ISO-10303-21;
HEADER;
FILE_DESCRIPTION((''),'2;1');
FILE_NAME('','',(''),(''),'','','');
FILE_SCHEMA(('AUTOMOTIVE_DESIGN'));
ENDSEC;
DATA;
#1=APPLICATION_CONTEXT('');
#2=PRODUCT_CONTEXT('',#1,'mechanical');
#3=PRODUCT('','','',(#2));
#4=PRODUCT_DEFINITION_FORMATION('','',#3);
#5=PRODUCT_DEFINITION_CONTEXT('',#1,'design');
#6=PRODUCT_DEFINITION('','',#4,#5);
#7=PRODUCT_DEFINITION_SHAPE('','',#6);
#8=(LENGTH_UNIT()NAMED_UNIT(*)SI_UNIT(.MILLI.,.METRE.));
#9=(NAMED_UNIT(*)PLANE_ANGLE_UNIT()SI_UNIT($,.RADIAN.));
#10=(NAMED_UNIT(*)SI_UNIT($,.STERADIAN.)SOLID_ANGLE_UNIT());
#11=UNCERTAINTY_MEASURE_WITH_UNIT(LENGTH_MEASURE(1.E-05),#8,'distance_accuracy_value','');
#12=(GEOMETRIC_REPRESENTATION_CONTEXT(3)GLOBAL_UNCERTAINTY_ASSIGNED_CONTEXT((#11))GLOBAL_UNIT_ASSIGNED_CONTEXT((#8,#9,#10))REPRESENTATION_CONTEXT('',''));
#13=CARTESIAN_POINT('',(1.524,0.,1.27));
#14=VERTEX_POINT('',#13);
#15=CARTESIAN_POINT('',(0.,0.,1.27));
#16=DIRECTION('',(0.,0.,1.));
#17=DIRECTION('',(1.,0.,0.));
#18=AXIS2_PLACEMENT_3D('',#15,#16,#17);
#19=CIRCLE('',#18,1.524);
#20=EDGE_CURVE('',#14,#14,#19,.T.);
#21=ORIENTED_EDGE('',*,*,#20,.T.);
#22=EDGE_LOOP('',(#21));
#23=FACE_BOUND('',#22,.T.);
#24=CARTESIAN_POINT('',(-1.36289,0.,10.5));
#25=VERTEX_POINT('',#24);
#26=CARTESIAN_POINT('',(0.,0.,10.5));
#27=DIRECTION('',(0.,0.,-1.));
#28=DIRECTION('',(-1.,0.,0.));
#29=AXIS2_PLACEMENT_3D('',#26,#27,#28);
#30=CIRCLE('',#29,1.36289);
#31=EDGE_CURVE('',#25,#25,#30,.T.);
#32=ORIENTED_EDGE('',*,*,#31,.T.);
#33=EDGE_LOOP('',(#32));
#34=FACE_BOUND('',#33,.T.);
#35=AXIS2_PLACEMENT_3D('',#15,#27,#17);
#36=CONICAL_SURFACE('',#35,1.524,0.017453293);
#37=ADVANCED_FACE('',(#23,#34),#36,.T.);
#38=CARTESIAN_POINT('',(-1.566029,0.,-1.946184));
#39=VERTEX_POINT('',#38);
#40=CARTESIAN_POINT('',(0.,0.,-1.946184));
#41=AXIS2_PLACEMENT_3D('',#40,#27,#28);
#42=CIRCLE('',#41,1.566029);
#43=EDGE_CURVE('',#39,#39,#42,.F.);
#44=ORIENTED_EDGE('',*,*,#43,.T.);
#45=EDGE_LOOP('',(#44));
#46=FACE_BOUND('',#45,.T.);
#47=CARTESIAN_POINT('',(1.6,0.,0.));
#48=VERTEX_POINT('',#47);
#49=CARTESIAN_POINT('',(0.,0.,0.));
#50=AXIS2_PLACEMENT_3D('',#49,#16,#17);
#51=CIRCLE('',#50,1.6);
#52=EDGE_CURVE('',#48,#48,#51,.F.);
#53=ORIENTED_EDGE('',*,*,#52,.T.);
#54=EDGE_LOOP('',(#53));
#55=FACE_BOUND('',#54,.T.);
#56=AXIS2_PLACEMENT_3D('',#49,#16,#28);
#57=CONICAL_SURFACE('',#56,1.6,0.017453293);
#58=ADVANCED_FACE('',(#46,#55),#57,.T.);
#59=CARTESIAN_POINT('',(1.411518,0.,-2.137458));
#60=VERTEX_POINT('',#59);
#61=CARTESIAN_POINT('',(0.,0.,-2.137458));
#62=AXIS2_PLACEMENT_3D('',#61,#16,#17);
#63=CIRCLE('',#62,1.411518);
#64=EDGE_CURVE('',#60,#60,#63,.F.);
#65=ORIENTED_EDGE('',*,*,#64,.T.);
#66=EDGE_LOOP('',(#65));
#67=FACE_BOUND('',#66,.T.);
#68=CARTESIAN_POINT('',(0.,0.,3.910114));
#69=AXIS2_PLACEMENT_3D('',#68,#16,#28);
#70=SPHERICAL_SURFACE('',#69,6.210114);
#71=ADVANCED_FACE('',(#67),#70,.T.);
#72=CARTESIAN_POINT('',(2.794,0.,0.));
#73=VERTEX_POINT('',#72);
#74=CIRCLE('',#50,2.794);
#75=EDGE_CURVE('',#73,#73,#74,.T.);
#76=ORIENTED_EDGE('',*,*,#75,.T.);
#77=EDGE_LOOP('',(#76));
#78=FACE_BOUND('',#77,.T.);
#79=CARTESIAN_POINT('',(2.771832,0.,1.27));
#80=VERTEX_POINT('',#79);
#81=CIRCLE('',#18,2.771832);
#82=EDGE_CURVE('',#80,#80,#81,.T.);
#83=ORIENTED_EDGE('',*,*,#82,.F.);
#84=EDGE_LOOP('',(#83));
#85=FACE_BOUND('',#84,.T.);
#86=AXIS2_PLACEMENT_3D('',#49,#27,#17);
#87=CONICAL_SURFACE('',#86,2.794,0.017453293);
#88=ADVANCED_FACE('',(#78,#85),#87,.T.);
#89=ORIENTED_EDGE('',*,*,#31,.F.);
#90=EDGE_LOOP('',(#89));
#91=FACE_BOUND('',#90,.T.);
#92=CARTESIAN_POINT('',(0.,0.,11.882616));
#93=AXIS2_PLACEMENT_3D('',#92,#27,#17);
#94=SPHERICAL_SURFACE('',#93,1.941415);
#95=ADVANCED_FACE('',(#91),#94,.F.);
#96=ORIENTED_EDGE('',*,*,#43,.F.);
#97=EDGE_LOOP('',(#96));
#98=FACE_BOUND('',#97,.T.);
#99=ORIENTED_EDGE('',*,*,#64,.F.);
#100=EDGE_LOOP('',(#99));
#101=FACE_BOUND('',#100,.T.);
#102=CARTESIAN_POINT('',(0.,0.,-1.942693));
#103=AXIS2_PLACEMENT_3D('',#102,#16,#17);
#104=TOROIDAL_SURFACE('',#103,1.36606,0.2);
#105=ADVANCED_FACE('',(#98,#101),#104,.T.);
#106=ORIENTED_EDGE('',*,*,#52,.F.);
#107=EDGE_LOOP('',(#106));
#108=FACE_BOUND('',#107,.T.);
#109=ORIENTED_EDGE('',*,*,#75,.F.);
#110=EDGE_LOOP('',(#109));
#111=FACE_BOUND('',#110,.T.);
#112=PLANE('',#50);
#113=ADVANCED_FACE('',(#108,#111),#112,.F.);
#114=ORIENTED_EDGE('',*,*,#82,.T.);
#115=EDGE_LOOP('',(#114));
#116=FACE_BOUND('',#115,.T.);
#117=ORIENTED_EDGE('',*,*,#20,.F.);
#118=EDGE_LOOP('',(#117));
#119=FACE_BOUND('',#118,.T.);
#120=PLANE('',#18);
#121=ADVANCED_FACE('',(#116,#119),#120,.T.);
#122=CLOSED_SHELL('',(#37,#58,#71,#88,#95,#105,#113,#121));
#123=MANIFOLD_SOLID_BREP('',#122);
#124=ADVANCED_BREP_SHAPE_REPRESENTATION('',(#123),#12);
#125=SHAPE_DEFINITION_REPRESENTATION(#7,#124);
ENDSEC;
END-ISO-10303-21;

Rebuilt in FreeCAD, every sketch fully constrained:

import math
import FreeCAD as App
import Part
import Sketcher


def edges_at(feature, points):
    """Names of the edges that pass closest to the given points."""
    edges = feature.Shape.Edges
    near = lambda p: min(range(len(edges)), key=lambda i: edges[i].distToShape(Part.Vertex(*p))[0])
    return sorted({f"Edge{near(p) + 1}" for p in points})

doc = App.newDocument("Part")
params = doc.addObject("Spreadsheet::Sheet", "Params")
for row, (alias, value) in enumerate([
    ("pad1_length", "1.27 mm"),
    ("pad1_taper", "-1 deg"),
    ("pad2_length", "9.23 mm"),
    ("pad2_taper", "-1 deg"),
    ("sketch3_diameter", "3.2 mm"),
    ("pad3_length", "2.1 mm"),
    ("pad3_taper", "-1 deg"),
    ("groove_angle", "360 deg"),
    ("sketch5_height", "0.2 mm"),
    ("revolution_angle", "360 deg"),
    ("fillet_radius", "0.2 mm"),
], start=1):
    params.set(f"A{row}", alias)
    params.set(f"B{row}", "=" + value)
    params.setAlias(f"B{row}", alias)

body = doc.addObject("PartDesign::Body", "Body")

# Sketch on XY plane
sketch1 = doc.addObject("Sketcher::SketchObject", "Sketch")
body.addObject(sketch1)
sketch1.AttachmentSupport = (doc.XY_Plane, [""])
sketch1.MapMode = "FlatFace"
sketch1.addGeometry(Part.Circle(App.Vector(0, 0, 0), App.Vector(0, 0, 1), 2.8), False)
sketch1.addConstraint(Sketcher.Constraint("Coincident", 0, 3, -1, 1))
sketch1.addConstraint(Sketcher.Constraint("Diameter", 0, 5.588))
pad1 = doc.addObject("PartDesign::Pad", "Pad")
body.addObject(pad1)
pad1.Profile = sketch1
pad1.setExpression("Length", "Params.pad1_length")
pad1.setExpression("TaperAngle", "Params.pad1_taper")

# Sketch on XY plane
sketch2 = doc.addObject("Sketcher::SketchObject", "Sketch001")
body.addObject(sketch2)
sketch2.AttachmentSupport = (doc.XY_Plane, [""])
sketch2.MapMode = "FlatFace"
sketch2.AttachmentOffset = App.Placement(App.Vector(0, 0, 1.27), App.Rotation())
sketch2.addGeometry(Part.Circle(App.Vector(0, 0, 0), App.Vector(0, 0, 1), 1.5), False)
sketch2.addConstraint(Sketcher.Constraint("Coincident", 0, 3, -1, 1))
sketch2.addConstraint(Sketcher.Constraint("Diameter", 0, 3.048))
pad2 = doc.addObject("PartDesign::Pad", "Pad001")
body.addObject(pad2)
pad2.Profile = sketch2
pad2.setExpression("Length", "Params.pad2_length")
pad2.setExpression("TaperAngle", "Params.pad2_taper")

# Sketch on XY plane
sketch3 = doc.addObject("Sketcher::SketchObject", "Sketch002")
body.addObject(sketch3)
sketch3.AttachmentSupport = (doc.XY_Plane, [""])
sketch3.MapMode = "FlatFace"
sketch3.addGeometry(Part.Circle(App.Vector(0, 0, 0), App.Vector(0, 0, 1), 1.6), False)
sketch3.addConstraint(Sketcher.Constraint("Coincident", 0, 3, -1, 1))
sketch3.addConstraint(Sketcher.Constraint("Diameter", 0, 3.2))
sketch3.setExpression("Constraints[1]", "Params.sketch3_diameter")
pad3 = doc.addObject("PartDesign::Pad", "Pad002")
body.addObject(pad3)
pad3.Profile = sketch3
pad3.setExpression("Length", "Params.pad3_length")
pad3.Reversed = True
pad3.setExpression("TaperAngle", "Params.pad3_taper")

# Sketch on XZ plane
sketch4 = doc.addObject("Sketcher::SketchObject", "Sketch003")
body.addObject(sketch4)
sketch4.AttachmentSupport = (doc.XZ_Plane, [""])
sketch4.MapMode = "FlatFace"
sketch4.addGeometry(Part.ArcOfCircle(Part.Circle(App.Vector(0, 11.88, 0), App.Vector(0, 0, 1), 1.94), math.radians(-90), math.radians(-45)), False)
sketch4.addGeometry(Part.LineSegment(App.Vector(0, 9.94, 0), App.Vector(0, 10.82, 0)), False)
sketch4.addGeometry(Part.LineSegment(App.Vector(0, 10.82, 0), App.Vector(1.36, 10.82, 0)), False)
sketch4.addGeometry(Part.LineSegment(App.Vector(1.36, 10.82, 0), App.Vector(1.36, 10.5, 0)), False)
sketch4.addConstraint(Sketcher.Constraint("Coincident", 0, 1, 1, 1))
sketch4.addConstraint(Sketcher.Constraint("Coincident", 1, 2, 2, 1))
sketch4.addConstraint(Sketcher.Constraint("Coincident", 2, 2, 3, 1))
sketch4.addConstraint(Sketcher.Constraint("Coincident", 3, 2, 0, 2))
sketch4.addConstraint(Sketcher.Constraint("Vertical", 1))
sketch4.addConstraint(Sketcher.Constraint("Horizontal", 2))
sketch4.addConstraint(Sketcher.Constraint("Vertical", 3))
sketch4.addConstraint(Sketcher.Constraint("PointOnObject", 0, 3, -2))
sketch4.addConstraint(Sketcher.Constraint("PointOnObject", 0, 1, -2))
sketch4.addConstraint(Sketcher.Constraint("DistanceY", -1, 1, 3, 2, 10.5))
sketch4.addConstraint(Sketcher.Constraint("Radius", 0, 1.941415))
sketch4.addConstraint(Sketcher.Constraint("DistanceX", 2, 1, 2, 2, 1.36289))
sketch4.addConstraint(Sketcher.Constraint("DistanceY", 1, 1, 1, 2, 0.882723))
groove = doc.addObject("PartDesign::Groove", "Groove")
body.addObject(groove)
groove.Profile = sketch4
groove.ReferenceAxis = (sketch4, ["V_Axis"])
groove.setExpression("Angle", "Params.groove_angle")

# Sketch on XZ plane
sketch5 = doc.addObject("Sketcher::SketchObject", "Sketch004")
body.addObject(sketch5)
sketch5.AttachmentSupport = (doc.XZ_Plane, [""])
sketch5.MapMode = "FlatFace"
sketch5.addGeometry(Part.LineSegment(App.Vector(0, -2.1, 0), App.Vector(0, -2.3, 0)), False)
sketch5.addGeometry(Part.ArcOfCircle(Part.Circle(App.Vector(0, 3.91, 0), App.Vector(0, 0, 1), 6.21), math.radians(-104.58), math.radians(-90)), False)
sketch5.addGeometry(Part.LineSegment(App.Vector(-1.56, -2.1, 0), App.Vector(0, -2.1, 0)), False)
sketch5.addConstraint(Sketcher.Constraint("Coincident", 0, 2, 1, 2))
sketch5.addConstraint(Sketcher.Constraint("Coincident", 1, 1, 2, 1))
sketch5.addConstraint(Sketcher.Constraint("Coincident", 2, 2, 0, 1))
sketch5.addConstraint(Sketcher.Constraint("Vertical", 0))
sketch5.addConstraint(Sketcher.Constraint("Horizontal", 2))
sketch5.addConstraint(Sketcher.Constraint("PointOnObject", 1, 3, -2))
sketch5.addConstraint(Sketcher.Constraint("PointOnObject", 0, 2, -2))
sketch5.addConstraint(Sketcher.Constraint("DistanceY", 0, 2, 0, 1, 0.2))
sketch5.addConstraint(Sketcher.Constraint("DistanceY", 0, 2, -1, 1, 2.3))
sketch5.addConstraint(Sketcher.Constraint("Radius", 1, 6.210114))
sketch5.setExpression("Constraints[7]", "Params.sketch5_height")
revolution = doc.addObject("PartDesign::Revolution", "Revolution")
body.addObject(revolution)
revolution.Profile = sketch5
revolution.ReferenceAxis = (sketch5, ["V_Axis"])
revolution.setExpression("Angle", "Params.revolution_angle")
doc.recompute()

fillet = doc.addObject("PartDesign::Fillet", "Fillet")
body.addObject(fillet)
fillet.Base = (revolution, edges_at(revolution, [(1.563, 0, -2.1)]))
fillet.setExpression("Radius", "Params.fillet_radius")

doc.recompute()
